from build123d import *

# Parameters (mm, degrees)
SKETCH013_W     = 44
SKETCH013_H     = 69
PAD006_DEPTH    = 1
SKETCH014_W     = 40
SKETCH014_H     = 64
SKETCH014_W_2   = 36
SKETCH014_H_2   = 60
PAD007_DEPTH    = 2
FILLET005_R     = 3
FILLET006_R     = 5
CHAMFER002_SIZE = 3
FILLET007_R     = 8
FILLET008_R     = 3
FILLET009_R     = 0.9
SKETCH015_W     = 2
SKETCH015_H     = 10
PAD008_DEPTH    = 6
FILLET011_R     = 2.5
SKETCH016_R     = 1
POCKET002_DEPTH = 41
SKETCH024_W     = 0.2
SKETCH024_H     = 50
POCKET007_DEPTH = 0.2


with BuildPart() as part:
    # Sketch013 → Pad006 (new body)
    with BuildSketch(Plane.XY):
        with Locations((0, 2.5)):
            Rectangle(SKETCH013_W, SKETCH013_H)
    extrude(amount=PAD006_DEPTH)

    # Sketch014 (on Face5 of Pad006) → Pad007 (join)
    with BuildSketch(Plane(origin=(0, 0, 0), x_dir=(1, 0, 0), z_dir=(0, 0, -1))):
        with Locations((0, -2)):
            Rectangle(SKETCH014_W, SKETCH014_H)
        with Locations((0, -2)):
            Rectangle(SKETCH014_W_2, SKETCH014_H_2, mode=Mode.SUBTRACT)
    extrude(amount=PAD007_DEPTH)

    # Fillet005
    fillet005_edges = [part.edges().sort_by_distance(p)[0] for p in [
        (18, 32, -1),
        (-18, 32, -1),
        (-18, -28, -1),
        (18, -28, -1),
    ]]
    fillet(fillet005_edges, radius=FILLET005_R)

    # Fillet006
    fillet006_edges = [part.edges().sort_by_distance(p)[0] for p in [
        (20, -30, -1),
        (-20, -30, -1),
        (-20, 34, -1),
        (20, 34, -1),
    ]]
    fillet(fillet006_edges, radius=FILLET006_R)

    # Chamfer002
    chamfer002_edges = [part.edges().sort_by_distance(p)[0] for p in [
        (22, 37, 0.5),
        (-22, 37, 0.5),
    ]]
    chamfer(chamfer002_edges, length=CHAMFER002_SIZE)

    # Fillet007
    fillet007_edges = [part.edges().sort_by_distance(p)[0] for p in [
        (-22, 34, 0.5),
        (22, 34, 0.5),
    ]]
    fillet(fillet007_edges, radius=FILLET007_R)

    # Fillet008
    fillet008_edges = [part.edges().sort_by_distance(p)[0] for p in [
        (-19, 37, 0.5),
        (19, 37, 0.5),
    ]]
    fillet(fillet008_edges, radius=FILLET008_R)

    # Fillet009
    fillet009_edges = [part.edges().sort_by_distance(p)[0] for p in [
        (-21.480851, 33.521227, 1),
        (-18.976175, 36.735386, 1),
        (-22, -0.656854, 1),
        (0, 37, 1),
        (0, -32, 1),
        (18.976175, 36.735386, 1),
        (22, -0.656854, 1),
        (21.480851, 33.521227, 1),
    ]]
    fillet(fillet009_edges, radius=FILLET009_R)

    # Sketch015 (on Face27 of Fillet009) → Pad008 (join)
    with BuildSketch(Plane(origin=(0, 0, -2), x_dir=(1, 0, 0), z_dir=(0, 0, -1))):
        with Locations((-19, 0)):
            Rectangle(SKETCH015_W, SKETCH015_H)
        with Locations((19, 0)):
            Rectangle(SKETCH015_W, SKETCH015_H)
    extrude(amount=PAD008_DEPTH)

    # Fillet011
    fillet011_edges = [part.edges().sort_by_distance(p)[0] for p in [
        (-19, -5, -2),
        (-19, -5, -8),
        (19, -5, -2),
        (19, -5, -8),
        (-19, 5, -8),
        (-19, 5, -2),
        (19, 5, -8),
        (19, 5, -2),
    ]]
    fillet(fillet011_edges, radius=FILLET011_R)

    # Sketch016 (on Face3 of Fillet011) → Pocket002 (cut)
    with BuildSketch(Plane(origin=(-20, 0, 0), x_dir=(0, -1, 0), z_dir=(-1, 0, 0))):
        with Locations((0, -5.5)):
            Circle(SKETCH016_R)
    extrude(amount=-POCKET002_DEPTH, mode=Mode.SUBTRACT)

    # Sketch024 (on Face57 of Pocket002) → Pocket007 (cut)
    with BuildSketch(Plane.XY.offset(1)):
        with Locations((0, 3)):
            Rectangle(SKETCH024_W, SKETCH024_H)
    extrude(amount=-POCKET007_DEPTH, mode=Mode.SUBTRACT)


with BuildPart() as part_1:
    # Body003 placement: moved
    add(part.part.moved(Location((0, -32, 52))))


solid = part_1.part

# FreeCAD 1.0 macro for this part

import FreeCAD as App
import Part
import Sketcher


def edges_at(feature, points):
    """Names of the edges that pass closest to the given points."""
    edges = feature.Shape.Edges
    near = lambda p: min(range(len(edges)), key=lambda i: edges[i].distToShape(Part.Vertex(*p))[0])
    return sorted({f"Edge{near(p) + 1}" for p in points})


def add_polygon(sketch, points):
    """Adds a closed chain of lines whose ends are joined by coincident constraints."""
    first, n = sketch.GeometryCount, len(points)
    for a, b in zip(points, points[1:] + points[:1]):
        sketch.addGeometry(Part.LineSegment(App.Vector(*a, 0), App.Vector(*b, 0)), False)
    for i in range(n):
        sketch.addConstraint(Sketcher.Constraint("Coincident", first + i, 2, first + (i + 1) % n, 1))

doc = App.newDocument("Part")
body = doc.addObject("PartDesign::Body", "Body")

# Sketch on XY plane
sketch1 = doc.addObject("Sketcher::SketchObject", "Sketch")
body.addObject(sketch1)
sketch1.AttachmentSupport = (doc.XY_Plane, [""])
sketch1.MapMode = "FlatFace"
add_polygon(sketch1, [(-22, 37), (-22, -32), (22, -32), (22, 37)])  # lines 0-3
sketch1.addConstraint(Sketcher.Constraint("Vertical", 0))
sketch1.addConstraint(Sketcher.Constraint("Horizontal", 1))
sketch1.addConstraint(Sketcher.Constraint("Vertical", 2))
sketch1.addConstraint(Sketcher.Constraint("Horizontal", 3))
sketch1.addConstraint(Sketcher.Constraint("DistanceX", 1, 1, 1, 2, 44.0))
sketch1.addConstraint(Sketcher.Constraint("DistanceY", 0, 2, 0, 1, 69.0))
sketch1.addConstraint(Sketcher.Constraint("DistanceX", 0, 2, -1, 1, 22.0))
sketch1.addConstraint(Sketcher.Constraint("DistanceY", 0, 2, -1, 1, 32.0))
pad1 = doc.addObject("PartDesign::Pad", "Pad")
body.addObject(pad1)
pad1.Profile = sketch1
pad1.Length = 1

# Sketch on XY plane
sketch2 = doc.addObject("Sketcher::SketchObject", "Sketch001")
body.addObject(sketch2)
sketch2.AttachmentSupport = (doc.XY_Plane, [""])
sketch2.MapMode = "FlatFace"
add_polygon(sketch2, [(-20, -30), (-20, 34), (20, 34), (20, -30)])  # lines 0-3
add_polygon(sketch2, [(18, 32), (-18, 32), (-18, -28), (18, -28)])  # lines 4-7
sketch2.addConstraint(Sketcher.Constraint("Vertical", 0))
sketch2.addConstraint(Sketcher.Constraint("Horizontal", 1))
sketch2.addConstraint(Sketcher.Constraint("Vertical", 2))
sketch2.addConstraint(Sketcher.Constraint("Horizontal", 3))
sketch2.addConstraint(Sketcher.Constraint("Horizontal", 4))
sketch2.addConstraint(Sketcher.Constraint("Vertical", 5))
sketch2.addConstraint(Sketcher.Constraint("Horizontal", 6))
sketch2.addConstraint(Sketcher.Constraint("Vertical", 7))
sketch2.addConstraint(Sketcher.Constraint("DistanceX", 1, 1, 1, 2, 40.0))
sketch2.addConstraint(Sketcher.Constraint("DistanceX", 4, 2, 4, 1, 36.0))
sketch2.addConstraint(Sketcher.Constraint("DistanceY", 0, 1, 0, 2, 64.0))
sketch2.addConstraint(Sketcher.Constraint("DistanceY", 5, 2, 5, 1, 60.0))
sketch2.addConstraint(Sketcher.Constraint("DistanceX", 0, 2, -1, 1, 20.0))
sketch2.addConstraint(Sketcher.Constraint("DistanceY", -1, 1, 0, 2, 34.0))
sketch2.addConstraint(Sketcher.Constraint("DistanceX", 4, 2, -1, 1, 18.0))
sketch2.addConstraint(Sketcher.Constraint("DistanceY", -1, 1, 4, 2, 32.0))
pad2 = doc.addObject("PartDesign::Pad", "Pad001")
body.addObject(pad2)
pad2.Profile = sketch2
pad2.Length = 2
pad2.Reversed = True
doc.recompute()

fillet = doc.addObject("PartDesign::Fillet", "Fillet")
body.addObject(fillet)
fillet.Base = (pad2, edges_at(pad2, [
    (18, 32, -1),
    (-18, 32, -1),
    (-18, -28, -1),
    (18, -28, -1),
]))
fillet.Radius = 3
doc.recompute()

fillet2 = doc.addObject("PartDesign::Fillet", "Fillet001")
body.addObject(fillet2)
fillet2.Base = (fillet, edges_at(fillet, [
    (20, -30, -1),
    (-20, -30, -1),
    (-20, 34, -1),
    (20, 34, -1),
]))
fillet2.Radius = 5
doc.recompute()

chamfer = doc.addObject("PartDesign::Chamfer", "Chamfer")
body.addObject(chamfer)
chamfer.Base = (fillet2, edges_at(fillet2, [(22, 37, 0.5), (-22, 37, 0.5)]))
chamfer.Size = 3
doc.recompute()

fillet3 = doc.addObject("PartDesign::Fillet", "Fillet002")
body.addObject(fillet3)
fillet3.Base = (chamfer, edges_at(chamfer, [(-22, 34, 0.5), (22, 34, 0.5)]))
fillet3.Radius = 8
doc.recompute()

fillet4 = doc.addObject("PartDesign::Fillet", "Fillet003")
body.addObject(fillet4)
fillet4.Base = (fillet3, edges_at(fillet3, [(-19, 37, 0.5), (19, 37, 0.5)]))
fillet4.Radius = 3
doc.recompute()

fillet5 = doc.addObject("PartDesign::Fillet", "Fillet004")
body.addObject(fillet5)
fillet5.Base = (fillet4, edges_at(fillet4, [
    (-21.481, 33.521, 1),
    (-18.976, 36.735, 1),
    (-22, -0.657, 1),
    (0, 37, 1),
    (0, -32, 1),
    (18.976, 36.735, 1),
    (22, -0.657, 1),
    (21.481, 33.521, 1),
]))
fillet5.Radius = 0.9

# Sketch on XY plane
sketch3 = doc.addObject("Sketcher::SketchObject", "Sketch002")
body.addObject(sketch3)
sketch3.AttachmentSupport = (doc.XY_Plane, [""])
sketch3.MapMode = "FlatFace"
sketch3.AttachmentOffset = App.Placement(App.Vector(0, 0, -2), App.Rotation())
add_polygon(sketch3, [(-20, -5), (-20, 5), (-18, 5), (-18, -5)])  # lines 0-3
add_polygon(sketch3, [(18, -5), (18, 5), (20, 5), (20, -5)])  # lines 4-7
sketch3.addConstraint(Sketcher.Constraint("Vertical", 0))
sketch3.addConstraint(Sketcher.Constraint("Horizontal", 1))
sketch3.addConstraint(Sketcher.Constraint("Vertical", 2))
sketch3.addConstraint(Sketcher.Constraint("Horizontal", 3))
sketch3.addConstraint(Sketcher.Constraint("Vertical", 4))
sketch3.addConstraint(Sketcher.Constraint("Horizontal", 5))
sketch3.addConstraint(Sketcher.Constraint("Vertical", 6))
sketch3.addConstraint(Sketcher.Constraint("Horizontal", 7))
sketch3.addConstraint(Sketcher.Constraint("Symmetric", 2, 2, 4, 2, -1, 1))
sketch3.addConstraint(Sketcher.Constraint("Symmetric", 0, 2, 6, 2, -1, 1))
sketch3.addConstraint(Sketcher.Constraint("Horizontal", 1, 2, 4, 2))
sketch3.addConstraint(Sketcher.Constraint("DistanceX", 1, 1, 1, 2, 2.0))
sketch3.addConstraint(Sketcher.Constraint("DistanceY", 0, 1, 0, 2, 10.0))
sketch3.addConstraint(Sketcher.Constraint("DistanceX", 0, 2, -1, 1, 20.0))
pad3 = doc.addObject("PartDesign::Pad", "Pad002")
body.addObject(pad3)
pad3.Profile = sketch3
pad3.Length = 6
pad3.Reversed = True
doc.recompute()

fillet6 = doc.addObject("PartDesign::Fillet", "Fillet005")
body.addObject(fillet6)
fillet6.Base = (pad3, edges_at(pad3, [
    (-19, -5, -2),
    (-19, -5, -8),
    (19, -5, -2),
    (19, -5, -8),
    (-19, 5, -8),
    (-19, 5, -2),
    (19, 5, -8),
    (19, 5, -2),
]))
fillet6.Radius = 2.5

# Sketch on YZ plane
sketch4 = doc.addObject("Sketcher::SketchObject", "Sketch003")
body.addObject(sketch4)
sketch4.AttachmentSupport = (doc.YZ_Plane, [""])
sketch4.MapMode = "FlatFace"
sketch4.AttachmentOffset = App.Placement(App.Vector(0, 0, -20), App.Rotation())
sketch4.addGeometry(Part.Circle(App.Vector(0, -5.5, 0), App.Vector(0, 0, 1), 1), False)
sketch4.addConstraint(Sketcher.Constraint("PointOnObject", 0, 3, -2))
sketch4.addConstraint(Sketcher.Constraint("Diameter", 0, 2.0))
sketch4.addConstraint(Sketcher.Constraint("DistanceY", 0, 3, -1, 1, 5.5))
pocket1 = doc.addObject("PartDesign::Pocket", "Pocket")
body.addObject(pocket1)
pocket1.Profile = sketch4
pocket1.Length = 41
pocket1.Reversed = True

# Sketch on XY plane
sketch5 = doc.addObject("Sketcher::SketchObject", "Sketch004")
body.addObject(sketch5)
sketch5.AttachmentSupport = (doc.XY_Plane, [""])
sketch5.MapMode = "FlatFace"
sketch5.AttachmentOffset = App.Placement(App.Vector(0, 0, 1), App.Rotation())
add_polygon(sketch5, [(-0.1, 28), (-0.1, -22), (0.1, -22), (0.1, 28)])  # lines 0-3
sketch5.addConstraint(Sketcher.Constraint("Vertical", 0))
sketch5.addConstraint(Sketcher.Constraint("Horizontal", 1))
sketch5.addConstraint(Sketcher.Constraint("Vertical", 2))
sketch5.addConstraint(Sketcher.Constraint("Horizontal", 3))
sketch5.addConstraint(Sketcher.Constraint("DistanceY", 0, 2, 0, 1, 50.0))
sketch5.addConstraint(Sketcher.Constraint("DistanceX", 1, 1, 1, 2, 0.2))
sketch5.addConstraint(Sketcher.Constraint("DistanceY", 0, 2, -1, 1, 22.0))
sketch5.addConstraint(Sketcher.Constraint("DistanceX", 0, 2, -1, 1, 0.1))
pocket2 = doc.addObject("PartDesign::Pocket", "Pocket001")
body.addObject(pocket2)
pocket2.Profile = sketch5
pocket2.Length = 0.2
body2 = doc.addObject("PartDesign::Body", "Body001")
doc.recompute()

body.Placement = App.Placement(App.Vector(0, -32, 52), App.Rotation(App.Vector(0, 0, 1), 0))
boolean = doc.addObject("PartDesign::Boolean", "Boolean")
body2.addObject(boolean)
boolean.Type = "Fuse"
boolean.addObjects([body])

doc.recompute()
